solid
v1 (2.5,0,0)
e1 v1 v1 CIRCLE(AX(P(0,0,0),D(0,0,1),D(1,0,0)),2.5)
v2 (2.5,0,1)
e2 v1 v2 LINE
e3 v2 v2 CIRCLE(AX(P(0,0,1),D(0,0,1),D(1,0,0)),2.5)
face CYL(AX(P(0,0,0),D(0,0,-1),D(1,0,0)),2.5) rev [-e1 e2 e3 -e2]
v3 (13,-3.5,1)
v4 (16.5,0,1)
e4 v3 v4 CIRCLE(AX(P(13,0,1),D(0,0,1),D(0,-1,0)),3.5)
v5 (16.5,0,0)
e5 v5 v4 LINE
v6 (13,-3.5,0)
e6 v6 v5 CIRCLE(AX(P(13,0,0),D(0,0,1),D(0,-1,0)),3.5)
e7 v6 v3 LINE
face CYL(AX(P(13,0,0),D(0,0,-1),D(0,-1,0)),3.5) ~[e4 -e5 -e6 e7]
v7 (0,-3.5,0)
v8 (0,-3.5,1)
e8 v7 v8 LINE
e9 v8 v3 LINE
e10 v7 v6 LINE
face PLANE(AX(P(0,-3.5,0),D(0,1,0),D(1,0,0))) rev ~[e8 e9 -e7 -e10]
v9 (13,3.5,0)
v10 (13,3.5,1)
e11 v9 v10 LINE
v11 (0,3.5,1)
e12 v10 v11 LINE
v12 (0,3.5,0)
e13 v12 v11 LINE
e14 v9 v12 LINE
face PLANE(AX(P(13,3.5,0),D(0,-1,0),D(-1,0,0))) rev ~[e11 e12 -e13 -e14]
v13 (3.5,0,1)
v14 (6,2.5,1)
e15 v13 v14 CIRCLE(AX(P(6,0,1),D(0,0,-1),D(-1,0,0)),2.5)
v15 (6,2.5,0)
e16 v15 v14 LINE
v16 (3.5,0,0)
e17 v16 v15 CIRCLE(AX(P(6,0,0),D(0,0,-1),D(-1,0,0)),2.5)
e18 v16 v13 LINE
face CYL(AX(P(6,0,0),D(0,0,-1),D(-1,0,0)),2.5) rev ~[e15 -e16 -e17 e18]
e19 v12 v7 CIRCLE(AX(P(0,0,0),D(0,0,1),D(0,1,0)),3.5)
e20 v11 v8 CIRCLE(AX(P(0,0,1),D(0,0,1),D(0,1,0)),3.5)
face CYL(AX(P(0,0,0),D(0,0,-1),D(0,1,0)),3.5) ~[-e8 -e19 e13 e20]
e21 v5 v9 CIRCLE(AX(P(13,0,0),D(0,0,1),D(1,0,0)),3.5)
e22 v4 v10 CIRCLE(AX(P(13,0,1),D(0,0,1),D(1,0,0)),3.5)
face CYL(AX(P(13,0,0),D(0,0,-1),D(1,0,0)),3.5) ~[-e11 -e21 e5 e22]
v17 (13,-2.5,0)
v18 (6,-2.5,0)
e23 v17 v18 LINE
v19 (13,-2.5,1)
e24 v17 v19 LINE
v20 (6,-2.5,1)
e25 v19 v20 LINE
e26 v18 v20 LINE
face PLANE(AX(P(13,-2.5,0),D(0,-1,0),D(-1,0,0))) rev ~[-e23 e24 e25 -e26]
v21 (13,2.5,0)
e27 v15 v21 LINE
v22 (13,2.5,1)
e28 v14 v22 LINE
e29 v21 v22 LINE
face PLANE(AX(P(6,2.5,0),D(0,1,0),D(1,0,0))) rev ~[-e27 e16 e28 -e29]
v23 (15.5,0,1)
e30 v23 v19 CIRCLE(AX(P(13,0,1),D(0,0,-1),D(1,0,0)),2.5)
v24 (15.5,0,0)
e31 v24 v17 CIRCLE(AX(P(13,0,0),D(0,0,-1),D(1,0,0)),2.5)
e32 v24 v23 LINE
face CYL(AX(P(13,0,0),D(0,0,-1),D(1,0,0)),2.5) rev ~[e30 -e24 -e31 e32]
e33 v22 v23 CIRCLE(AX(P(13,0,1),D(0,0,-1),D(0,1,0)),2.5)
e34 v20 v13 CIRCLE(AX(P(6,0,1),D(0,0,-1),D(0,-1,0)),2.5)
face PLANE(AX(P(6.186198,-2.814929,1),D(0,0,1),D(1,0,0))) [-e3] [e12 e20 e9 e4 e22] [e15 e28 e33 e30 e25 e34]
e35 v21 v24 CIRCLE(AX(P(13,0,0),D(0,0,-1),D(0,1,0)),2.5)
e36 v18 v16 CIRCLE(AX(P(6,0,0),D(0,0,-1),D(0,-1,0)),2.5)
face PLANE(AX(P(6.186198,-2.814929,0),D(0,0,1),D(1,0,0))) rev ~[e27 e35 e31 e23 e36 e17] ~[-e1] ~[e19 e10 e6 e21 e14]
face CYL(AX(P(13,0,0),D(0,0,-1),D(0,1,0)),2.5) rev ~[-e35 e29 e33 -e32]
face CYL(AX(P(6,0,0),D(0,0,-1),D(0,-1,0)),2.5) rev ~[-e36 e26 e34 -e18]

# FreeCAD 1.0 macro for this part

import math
import FreeCAD as App
import Part
import Sketcher

V = App.Vector

doc = App.newDocument("Part")
body = doc.addObject("PartDesign::Body", "Body")

# Sketch on XY plane
sketch1 = body.newObject("Sketcher::SketchObject", "Sketch")
sketch1.AttachmentSupport = (doc.getObject("XY_Plane"), [""])
sketch1.MapMode = "FlatFace"
sketch1.addGeometry(Part.LineSegment(V(13, 3.5, 0), V(0, 3.5, 0)), False)
sketch1.addGeometry(Part.ArcOfCircle(Part.Circle(V(0, 0, 0), V(0, 0, 1), 3.5), math.radians(90), math.radians(270)), False)
sketch1.addGeometry(Part.LineSegment(V(0, -3.5, 0), V(13, -3.5, 0)), False)
sketch1.addGeometry(Part.ArcOfCircle(Part.Circle(V(13, 0, 0), V(0, 0, 1), 3.5), math.radians(-90), math.radians(0)), False)
sketch1.addGeometry(Part.ArcOfCircle(Part.Circle(V(13, 0, 0), V(0, 0, 1), 3.5), math.radians(0), math.radians(90)), False)
sketch1.addGeometry(Part.Circle(V(0, 0, 0), V(0, 0, 1), 2.5), False)
sketch1.addGeometry(Part.ArcOfCircle(Part.Circle(V(6, 0, 0), V(0, 0, 1), 2.5), math.radians(180), math.radians(270)), False)
sketch1.addGeometry(Part.ArcOfCircle(Part.Circle(V(6, 0, 0), V(0, 0, 1), 2.5), math.radians(90), math.radians(180)), False)
sketch1.addGeometry(Part.LineSegment(V(6, 2.5, 0), V(13, 2.5, 0)), False)
sketch1.addGeometry(Part.ArcOfCircle(Part.Circle(V(13, 0, 0), V(0, 0, 1), 2.5), math.radians(0), math.radians(90)), False)
sketch1.addGeometry(Part.ArcOfCircle(Part.Circle(V(13, 0, 0), V(0, 0, 1), 2.5), math.radians(-90), math.radians(0)), False)
sketch1.addGeometry(Part.LineSegment(V(13, -2.5, 0), V(6, -2.5, 0)), False)
sketch1.addConstraint(Sketcher.Constraint("Tangent", 0, 2, 1, 1))
sketch1.addConstraint(Sketcher.Constraint("Tangent", 1, 2, 2, 1))
sketch1.addConstraint(Sketcher.Constraint("Tangent", 2, 2, 3, 1))
sketch1.addConstraint(Sketcher.Constraint("Tangent", 3, 2, 4, 1))
sketch1.addConstraint(Sketcher.Constraint("Tangent", 4, 2, 0, 1))
sketch1.addConstraint(Sketcher.Constraint("Tangent", 6, 1, 7, 2))
sketch1.addConstraint(Sketcher.Constraint("Tangent", 7, 1, 8, 1))
sketch1.addConstraint(Sketcher.Constraint("Tangent", 8, 2, 9, 2))
sketch1.addConstraint(Sketcher.Constraint("Tangent", 9, 1, 10, 2))
sketch1.addConstraint(Sketcher.Constraint("Tangent", 10, 1, 11, 1))
sketch1.addConstraint(Sketcher.Constraint("Tangent", 11, 2, 6, 2))
sketch1.addConstraint(Sketcher.Constraint("Horizontal", 0))
sketch1.addConstraint(Sketcher.Constraint("Horizontal", 2))
sketch1.addConstraint(Sketcher.Constraint("Horizontal", 8))
sketch1.addConstraint(Sketcher.Constraint("Horizontal", 11))
sketch1.addConstraint(Sketcher.Constraint("Coincident", 1, 3, -1, 1))
sketch1.addConstraint(Sketcher.Constraint("Coincident", 5, 3, -1, 1))
sketch1.addConstraint(Sketcher.Constraint("Coincident", 9, 3, 3, 3))
sketch1.addConstraint(Sketcher.Constraint("Equal", 1, 3))
sketch1.addConstraint(Sketcher.Constraint("Equal", 5, 6))
sketch1.addConstraint(Sketcher.Constraint("Equal", 6, 7))
sketch1.addConstraint(Sketcher.Constraint("Equal", 7, 9))
sketch1.addConstraint(Sketcher.Constraint("PointOnObject", 3, 2, -1))
sketch1.addConstraint(Sketcher.Constraint("PointOnObject", 6, 1, -1))
sketch1.addConstraint(Sketcher.Constraint("PointOnObject", 9, 1, -1))
sketch1.addConstraint(Sketcher.Constraint("Diameter", 5, 5.0))
sketch1.addConstraint(Sketcher.Constraint("Radius", 1, 3.5))
sketch1.addConstraint(Sketcher.Constraint("DistanceX", 0, 2, 0, 1, 13.0))
sketch1.addConstraint(Sketcher.Constraint("DistanceX", 8, 1, 8, 2, 7.0))
pad1 = body.newObject("PartDesign::Pad", "Pad")
pad1.Profile = sketch1
pad1.Length = 1

doc.recompute()
